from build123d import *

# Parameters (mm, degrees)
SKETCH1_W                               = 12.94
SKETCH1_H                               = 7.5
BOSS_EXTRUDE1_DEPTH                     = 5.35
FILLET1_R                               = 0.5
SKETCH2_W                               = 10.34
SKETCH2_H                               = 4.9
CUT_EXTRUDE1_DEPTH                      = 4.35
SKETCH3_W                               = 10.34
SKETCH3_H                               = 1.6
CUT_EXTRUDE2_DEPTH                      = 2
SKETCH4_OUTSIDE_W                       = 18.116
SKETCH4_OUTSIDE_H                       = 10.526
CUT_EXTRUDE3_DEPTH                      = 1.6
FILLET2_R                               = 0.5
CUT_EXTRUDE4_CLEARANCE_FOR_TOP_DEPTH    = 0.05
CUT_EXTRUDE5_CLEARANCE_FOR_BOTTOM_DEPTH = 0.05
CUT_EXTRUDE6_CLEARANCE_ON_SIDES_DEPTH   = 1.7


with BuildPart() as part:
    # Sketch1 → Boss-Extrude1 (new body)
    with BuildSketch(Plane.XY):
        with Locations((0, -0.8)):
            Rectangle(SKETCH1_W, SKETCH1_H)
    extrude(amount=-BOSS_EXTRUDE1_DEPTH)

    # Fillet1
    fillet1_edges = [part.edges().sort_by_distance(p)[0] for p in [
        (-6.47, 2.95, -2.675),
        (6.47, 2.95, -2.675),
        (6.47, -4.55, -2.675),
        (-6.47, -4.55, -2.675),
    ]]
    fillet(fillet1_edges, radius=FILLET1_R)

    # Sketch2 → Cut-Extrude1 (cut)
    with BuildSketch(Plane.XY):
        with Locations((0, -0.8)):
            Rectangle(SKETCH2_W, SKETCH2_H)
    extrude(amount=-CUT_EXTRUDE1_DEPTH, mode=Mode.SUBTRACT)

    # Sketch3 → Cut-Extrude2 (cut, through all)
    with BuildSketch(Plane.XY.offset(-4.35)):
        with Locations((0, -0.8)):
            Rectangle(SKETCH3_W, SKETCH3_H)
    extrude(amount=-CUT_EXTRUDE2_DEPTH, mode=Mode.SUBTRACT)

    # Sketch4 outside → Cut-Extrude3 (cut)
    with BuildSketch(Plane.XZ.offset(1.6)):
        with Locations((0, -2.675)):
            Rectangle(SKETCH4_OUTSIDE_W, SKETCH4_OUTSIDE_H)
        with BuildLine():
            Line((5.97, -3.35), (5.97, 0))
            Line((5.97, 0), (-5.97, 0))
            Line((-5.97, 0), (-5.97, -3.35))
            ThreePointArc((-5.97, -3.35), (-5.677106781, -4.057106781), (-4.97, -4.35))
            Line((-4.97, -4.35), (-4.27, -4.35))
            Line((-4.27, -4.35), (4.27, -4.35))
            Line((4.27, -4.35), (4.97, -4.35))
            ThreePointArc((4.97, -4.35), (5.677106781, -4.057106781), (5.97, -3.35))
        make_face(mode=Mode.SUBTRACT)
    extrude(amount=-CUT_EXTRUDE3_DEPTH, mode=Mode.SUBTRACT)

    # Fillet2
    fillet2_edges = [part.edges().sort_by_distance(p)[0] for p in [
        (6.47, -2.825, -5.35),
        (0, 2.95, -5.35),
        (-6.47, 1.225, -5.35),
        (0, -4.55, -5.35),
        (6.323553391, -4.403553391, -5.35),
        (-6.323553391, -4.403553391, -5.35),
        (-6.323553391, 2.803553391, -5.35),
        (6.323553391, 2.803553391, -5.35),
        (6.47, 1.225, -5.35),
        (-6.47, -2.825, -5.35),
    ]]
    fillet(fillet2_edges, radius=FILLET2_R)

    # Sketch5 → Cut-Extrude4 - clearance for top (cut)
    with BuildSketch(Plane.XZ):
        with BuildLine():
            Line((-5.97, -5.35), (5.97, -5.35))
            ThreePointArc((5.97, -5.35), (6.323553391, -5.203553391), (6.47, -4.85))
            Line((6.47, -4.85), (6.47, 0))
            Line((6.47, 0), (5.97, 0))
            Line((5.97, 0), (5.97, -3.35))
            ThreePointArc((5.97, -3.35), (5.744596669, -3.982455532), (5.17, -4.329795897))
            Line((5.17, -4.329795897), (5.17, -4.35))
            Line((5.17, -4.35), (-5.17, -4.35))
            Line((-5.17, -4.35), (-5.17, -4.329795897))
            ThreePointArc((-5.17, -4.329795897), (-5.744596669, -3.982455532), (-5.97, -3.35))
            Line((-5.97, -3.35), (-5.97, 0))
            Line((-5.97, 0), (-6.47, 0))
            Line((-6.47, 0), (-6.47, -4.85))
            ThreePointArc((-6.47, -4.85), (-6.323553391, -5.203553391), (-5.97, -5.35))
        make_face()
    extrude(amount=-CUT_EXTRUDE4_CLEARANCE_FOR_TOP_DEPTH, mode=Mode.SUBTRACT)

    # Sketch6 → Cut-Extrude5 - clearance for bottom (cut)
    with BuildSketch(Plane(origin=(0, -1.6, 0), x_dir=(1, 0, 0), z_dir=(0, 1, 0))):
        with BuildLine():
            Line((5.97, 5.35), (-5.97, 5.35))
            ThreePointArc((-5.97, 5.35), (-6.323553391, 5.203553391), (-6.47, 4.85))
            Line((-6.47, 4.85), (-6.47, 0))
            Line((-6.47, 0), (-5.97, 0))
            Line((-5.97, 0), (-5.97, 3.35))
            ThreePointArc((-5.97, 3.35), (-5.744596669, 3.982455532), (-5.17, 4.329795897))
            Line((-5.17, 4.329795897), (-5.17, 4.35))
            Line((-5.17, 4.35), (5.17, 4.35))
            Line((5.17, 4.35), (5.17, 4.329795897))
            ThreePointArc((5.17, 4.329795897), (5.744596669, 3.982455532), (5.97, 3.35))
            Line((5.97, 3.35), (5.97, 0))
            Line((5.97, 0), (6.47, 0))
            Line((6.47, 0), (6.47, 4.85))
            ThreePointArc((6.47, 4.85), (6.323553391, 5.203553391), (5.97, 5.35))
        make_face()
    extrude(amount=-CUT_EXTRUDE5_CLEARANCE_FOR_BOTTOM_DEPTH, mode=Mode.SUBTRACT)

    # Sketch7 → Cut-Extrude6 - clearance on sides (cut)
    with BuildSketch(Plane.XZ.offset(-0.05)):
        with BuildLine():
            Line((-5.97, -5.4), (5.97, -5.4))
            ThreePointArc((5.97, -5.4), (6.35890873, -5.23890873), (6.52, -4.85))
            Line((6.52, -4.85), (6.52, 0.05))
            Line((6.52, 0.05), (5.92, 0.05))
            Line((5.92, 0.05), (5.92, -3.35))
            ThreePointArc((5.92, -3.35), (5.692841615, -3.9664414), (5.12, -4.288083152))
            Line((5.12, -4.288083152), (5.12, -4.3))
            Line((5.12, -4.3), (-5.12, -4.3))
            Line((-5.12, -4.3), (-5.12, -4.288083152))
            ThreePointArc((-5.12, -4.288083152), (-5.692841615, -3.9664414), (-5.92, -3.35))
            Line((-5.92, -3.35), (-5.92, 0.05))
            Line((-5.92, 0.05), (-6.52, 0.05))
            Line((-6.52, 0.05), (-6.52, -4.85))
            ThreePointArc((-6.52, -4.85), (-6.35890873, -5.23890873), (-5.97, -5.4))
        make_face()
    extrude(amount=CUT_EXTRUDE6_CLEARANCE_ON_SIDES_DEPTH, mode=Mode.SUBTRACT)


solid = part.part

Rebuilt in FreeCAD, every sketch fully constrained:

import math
import FreeCAD as App
import Part
import Sketcher

V = App.Vector


def edges_at(feature, points):
    """Names of the edges that pass closest to the given points."""
    edges = feature.Shape.Edges
    near = lambda p: min(range(len(edges)), key=lambda i: edges[i].distToShape(Part.Vertex(*p))[0])
    return sorted({f"Edge{near(p) + 1}" for p in points})


def add_polygon(sketch, points):
    """Adds a closed chain of lines whose ends are joined by coincident constraints."""
    first, n = sketch.GeometryCount, len(points)
    for a, b in zip(points, points[1:] + points[:1]):
        sketch.addGeometry(Part.LineSegment(App.Vector(*a, 0), App.Vector(*b, 0)), False)
    for i in range(n):
        sketch.addConstraint(Sketcher.Constraint("Coincident", first + i, 2, first + (i + 1) % n, 1))

doc = App.newDocument("Part")
body = doc.addObject("PartDesign::Body", "Body")

# Sketch on XY plane
sketch1 = doc.addObject("Sketcher::SketchObject", "Sketch")
body.addObject(sketch1)
sketch1.AttachmentSupport = (doc.XY_Plane, [""])
sketch1.MapMode = "FlatFace"
add_polygon(sketch1, [(-6, 3), (-6, -5), (6, -5), (6, 3)])  # lines 0-3
sketch1.addConstraint(Sketcher.Constraint("Vertical", 0))
sketch1.addConstraint(Sketcher.Constraint("Horizontal", 1))
sketch1.addConstraint(Sketcher.Constraint("Vertical", 2))
sketch1.addConstraint(Sketcher.Constraint("Horizontal", 3))
sketch1.addConstraint(Sketcher.Constraint("DistanceY", 0, 2, 0, 1, 7.5))
sketch1.addConstraint(Sketcher.Constraint("DistanceX", 1, 1, 1, 2, 12.94))
sketch1.addConstraint(Sketcher.Constraint("DistanceX", 0, 2, -1, 1, 6.47))
sketch1.addConstraint(Sketcher.Constraint("DistanceY", 0, 2, -1, 1, 4.55))
pad1 = doc.addObject("PartDesign::Pad", "Pad")
body.addObject(pad1)
pad1.Profile = sketch1
pad1.Length = 5.35
pad1.Reversed = True
doc.recompute()

fillet = doc.addObject("PartDesign::Fillet", "Fillet")
body.addObject(fillet)
fillet.Base = (pad1, edges_at(pad1, [
    (-6.47, 2.95, -2.675),
    (6.47, 2.95, -2.675),
    (6.47, -4.55, -2.675),
    (-6.47, -4.55, -2.675),
]))
fillet.Radius = 0.5

# Sketch on XY plane
sketch2 = doc.addObject("Sketcher::SketchObject", "Sketch001")
body.addObject(sketch2)
sketch2.AttachmentSupport = (doc.XY_Plane, [""])
sketch2.MapMode = "FlatFace"
add_polygon(sketch2, [(-5.2, 1.6), (-5.2, -3.2), (5.2, -3.2), (5.2, 1.6)])  # lines 0-3
sketch2.addConstraint(Sketcher.Constraint("Vertical", 0))
sketch2.addConstraint(Sketcher.Constraint("Horizontal", 1))
sketch2.addConstraint(Sketcher.Constraint("Vertical", 2))
sketch2.addConstraint(Sketcher.Constraint("Horizontal", 3))
sketch2.addConstraint(Sketcher.Constraint("DistanceY", 0, 2, 0, 1, 4.9))
sketch2.addConstraint(Sketcher.Constraint("DistanceX", 1, 1, 1, 2, 10.34))
sketch2.addConstraint(Sketcher.Constraint("DistanceX", 0, 2, -1, 1, 5.17))
sketch2.addConstraint(Sketcher.Constraint("DistanceY", 0, 2, -1, 1, 3.25))
pocket1 = doc.addObject("PartDesign::Pocket", "Pocket")
body.addObject(pocket1)
pocket1.Profile = sketch2
pocket1.Length = 4.35

# Sketch on XY plane
sketch3 = doc.addObject("Sketcher::SketchObject", "Sketch002")
body.addObject(sketch3)
sketch3.AttachmentSupport = (doc.XY_Plane, [""])
sketch3.MapMode = "FlatFace"
sketch3.AttachmentOffset = App.Placement(V(0, 0, -4.35), App.Rotation())
add_polygon(sketch3, [(-5.2, 0), (-5.2, -1.6), (5.2, -1.6), (5.2, 0)])  # lines 0-3
sketch3.addConstraint(Sketcher.Constraint("Vertical", 0))
sketch3.addConstraint(Sketcher.Constraint("Horizontal", 1))
sketch3.addConstraint(Sketcher.Constraint("Vertical", 2))
sketch3.addConstraint(Sketcher.Constraint("Horizontal", 3))
sketch3.addConstraint(Sketcher.Constraint("Symmetric", 2, 2, 3, 2, -1, 1))
sketch3.addConstraint(Sketcher.Constraint("DistanceY", 0, 2, 0, 1, 1.6))
sketch3.addConstraint(Sketcher.Constraint("DistanceX", 1, 1, 1, 2, 10.34))
pocket2 = doc.addObject("PartDesign::Pocket", "Pocket001")
body.addObject(pocket2)
pocket2.Profile = sketch3
pocket2.Type = "ThroughAll"

# Sketch on XZ plane
sketch4 = doc.addObject("Sketcher::SketchObject", "Sketch003")
body.addObject(sketch4)
sketch4.AttachmentSupport = (doc.XZ_Plane, [""])
sketch4.MapMode = "FlatFace"
sketch4.AttachmentOffset = App.Placement(V(0, 0, 1.6), App.Rotation())
add_polygon(sketch4, [(-9.1, 2.6), (-9.1, -7.9), (9.1, -7.9), (9.1, 2.6)])  # lines 0-3
sketch4.addGeometry(Part.LineSegment(V(6, 0, 0), V(6, -3.4, 0)), False)  # 4
sketch4.addGeometry(Part.ArcOfCircle(Part.Circle(V(5, -3.3, 0), V(0, 0, 1), 1), math.radians(-90), math.radians(0)), False)  # 5
sketch4.addGeometry(Part.LineSegment(V(5, -4.3, 0), V(-5, -4.3, 0)), False)  # 6
sketch4.addGeometry(Part.ArcOfCircle(Part.Circle(V(-5, -3.3, 0), V(0, 0, 1), 1), math.radians(-180), math.radians(-90)), False)  # 7
sketch4.addGeometry(Part.LineSegment(V(-6, -3.4, 0), V(-6, 0, 0)), False)  # 8
sketch4.addGeometry(Part.LineSegment(V(-6, 0, 0), V(6, 0, 0)), False)  # 9
sketch4.addConstraint(Sketcher.Constraint("Tangent", 4, 2, 5, 2))
sketch4.addConstraint(Sketcher.Constraint("Tangent", 5, 1, 6, 1))
sketch4.addConstraint(Sketcher.Constraint("Tangent", 6, 2, 7, 2))
sketch4.addConstraint(Sketcher.Constraint("Tangent", 7, 1, 8, 1))
sketch4.addConstraint(Sketcher.Constraint("Coincident", 8, 2, 9, 1))
sketch4.addConstraint(Sketcher.Constraint("Coincident", 9, 2, 4, 1))
sketch4.addConstraint(Sketcher.Constraint("Vertical", 0))
sketch4.addConstraint(Sketcher.Constraint("Horizontal", 1))
sketch4.addConstraint(Sketcher.Constraint("Vertical", 2))
sketch4.addConstraint(Sketcher.Constraint("Horizontal", 3))
sketch4.addConstraint(Sketcher.Constraint("Vertical", 4))
sketch4.addConstraint(Sketcher.Constraint("Horizontal", 6))
sketch4.addConstraint(Sketcher.Constraint("Vertical", 8))
sketch4.addConstraint(Sketcher.Constraint("Horizontal", 9))
sketch4.addConstraint(Sketcher.Constraint("Equal", 5, 7))
sketch4.addConstraint(Sketcher.Constraint("Symmetric", 8, 2, 9, 2, -1, 1))
sketch4.addConstraint(Sketcher.Constraint("Radius", 5, 1.0))
sketch4.addConstraint(Sketcher.Constraint("DistanceX", 6, 2, 6, 1, 9.94))
sketch4.addConstraint(Sketcher.Constraint("DistanceY", 4, 2, 4, 1, 3.35))
sketch4.addConstraint(Sketcher.Constraint("DistanceX", 1, 1, 1, 2, 18.116))
sketch4.addConstraint(Sketcher.Constraint("DistanceY", 0, 2, 0, 1, 10.526))
sketch4.addConstraint(Sketcher.Constraint("DistanceX", 0, 2, -1, 1, 9.058))
sketch4.addConstraint(Sketcher.Constraint("DistanceY", 0, 2, -1, 1, 7.938))
pocket3 = doc.addObject("PartDesign::Pocket", "Pocket002")
body.addObject(pocket3)
pocket3.Profile = sketch4
pocket3.Length = 1.6
doc.recompute()

fillet2 = doc.addObject("PartDesign::Fillet", "Fillet001")
body.addObject(fillet2)
fillet2.Base = (pocket3, edges_at(pocket3, [
    (6.47, -2.825, -5.35),
    (0, 2.95, -5.35),
    (-6.47, 1.225, -5.35),
    (0, -4.55, -5.35),
    (6.324, -4.404, -5.35),
    (-6.324, -4.404, -5.35),
    (-6.324, 2.804, -5.35),
    (6.324, 2.804, -5.35),
    (6.47, 1.225, -5.35),
    (-6.47, -2.825, -5.35),
]))
fillet2.Radius = 0.5

# Sketch on XZ plane
sketch5 = doc.addObject("Sketcher::SketchObject", "Sketch004")
body.addObject(sketch5)
sketch5.AttachmentSupport = (doc.XZ_Plane, [""])
sketch5.MapMode = "FlatFace"
sketch5.addGeometry(Part.LineSegment(V(-5.97, -5.35, 0), V(5.97, -5.35, 0)), False)
sketch5.addGeometry(Part.ArcOfCircle(Part.Circle(V(5.97, -4.85, 0), V(0, 0, 1), 0.5), math.radians(-90), math.radians(0)), False)
sketch5.addGeometry(Part.LineSegment(V(6.47, -4.85, 0), V(6.47, 0, 0)), False)
sketch5.addGeometry(Part.LineSegment(V(6.47, 0, 0), V(5.97, 0, 0)), False)
sketch5.addGeometry(Part.LineSegment(V(5.97, 0, 0), V(5.97, -3.35, 0)), False)
sketch5.addGeometry(Part.ArcOfCircle(Part.Circle(V(4.97, -3.35, 0), V(0, 0, 1), 1), math.radians(-78), math.radians(0)), False)
sketch5.addGeometry(Part.LineSegment(V(5.17, -4.33, 0), V(5.17, -4.35, 0)), False)
sketch5.addGeometry(Part.LineSegment(V(5.17, -4.35, 0), V(-5.17, -4.35, 0)), False)
sketch5.addGeometry(Part.LineSegment(V(-5.17, -4.35, 0), V(-5.17, -4.33, 0)), False)
sketch5.addGeometry(Part.ArcOfCircle(Part.Circle(V(-4.97, -3.35, 0), V(0, 0, 1), 1), math.radians(180), math.radians(258)), False)
sketch5.addGeometry(Part.LineSegment(V(-5.97, -3.35, 0), V(-5.97, 0, 0)), False)
sketch5.addGeometry(Part.LineSegment(V(-5.97, 0, 0), V(-6.47, 0, 0)), False)
sketch5.addGeometry(Part.LineSegment(V(-6.47, 0, 0), V(-6.47, -4.85, 0)), False)
sketch5.addGeometry(Part.ArcOfCircle(Part.Circle(V(-5.97, -4.85, 0), V(0, 0, 1), 0.5), math.radians(180), math.radians(270)), False)
sketch5.addConstraint(Sketcher.Constraint("Tangent", 0, 2, 1, 1))
sketch5.addConstraint(Sketcher.Constraint("Tangent", 1, 2, 2, 1))
sketch5.addConstraint(Sketcher.Constraint("Coincident", 2, 2, 3, 1))
sketch5.addConstraint(Sketcher.Constraint("Coincident", 3, 2, 4, 1))
sketch5.addConstraint(Sketcher.Constraint("Tangent", 4, 2, 5, 2))
sketch5.addConstraint(Sketcher.Constraint("Coincident", 5, 1, 6, 1))
sketch5.addConstraint(Sketcher.Constraint("Coincident", 6, 2, 7, 1))
sketch5.addConstraint(Sketcher.Constraint("Coincident", 7, 2, 8, 1))
sketch5.addConstraint(Sketcher.Constraint("Coincident", 8, 2, 9, 2))
sketch5.addConstraint(Sketcher.Constraint("Tangent", 9, 1, 10, 1))
sketch5.addConstraint(Sketcher.Constraint("Coincident", 10, 2, 11, 1))
sketch5.addConstraint(Sketcher.Constraint("Coincident", 11, 2, 12, 1))
sketch5.addConstraint(Sketcher.Constraint("Tangent", 12, 2, 13, 1))
sketch5.addConstraint(Sketcher.Constraint("Tangent", 13, 2, 0, 1))
sketch5.addConstraint(Sketcher.Constraint("Horizontal", 0))
sketch5.addConstraint(Sketcher.Constraint("Vertical", 2))
sketch5.addConstraint(Sketcher.Constraint("Horizontal", 3))
sketch5.addConstraint(Sketcher.Constraint("Vertical", 4))
sketch5.addConstraint(Sketcher.Constraint("Vertical", 6))
sketch5.addConstraint(Sketcher.Constraint("Horizontal", 7))
sketch5.addConstraint(Sketcher.Constraint("Vertical", 8))
sketch5.addConstraint(Sketcher.Constraint("Vertical", 10))
sketch5.addConstraint(Sketcher.Constraint("Horizontal", 11))
sketch5.addConstraint(Sketcher.Constraint("Vertical", 12))
sketch5.addConstraint(Sketcher.Constraint("Equal", 5, 9))
sketch5.addConstraint(Sketcher.Constraint("Equal", 1, 13))
sketch5.addConstraint(Sketcher.Constraint("Symmetric", 3, 2, 10, 2, -1, 1))
sketch5.addConstraint(Sketcher.Constraint("Symmetric", 5, 1, 8, 2, -2))
sketch5.addConstraint(Sketcher.Constraint("Symmetric", 2, 2, 11, 2, -2))
sketch5.addConstraint(Sketcher.Constraint("Vertical", 0, 2, 3, 2))
sketch5.addConstraint(Sketcher.Constraint("Radius", 5, 1.0))
sketch5.addConstraint(Sketcher.Constraint("Radius", 1, 0.5))
sketch5.addConstraint(Sketcher.Constraint("DistanceY", 0, 2, 5, 3, 2.0))
sketch5.addConstraint(Sketcher.Constraint("DistanceY", 6, 2, 5, 3, 1.0))
sketch5.addConstraint(Sketcher.Constraint("DistanceX", 0, 1, 0, 2, 11.94))
sketch5.addConstraint(Sketcher.Constraint("DistanceX", 7, 2, 7, 1, 10.34))
sketch5.addConstraint(Sketcher.Constraint("DistanceY", 2, 1, 2, 2, 4.85))
pocket4 = doc.addObject("PartDesign::Pocket", "Pocket003")
body.addObject(pocket4)
pocket4.Profile = sketch5
pocket4.Length = 0.05

# Sketch on XZ plane
sketch6 = doc.addObject("Sketcher::SketchObject", "Sketch005")
body.addObject(sketch6)
sketch6.AttachmentSupport = (doc.XZ_Plane, [""])
sketch6.MapMode = "FlatFace"
sketch6.AttachmentOffset = App.Placement(V(0, 0, 1.6), App.Rotation())
sketch6.addGeometry(Part.LineSegment(V(5.97, -5.35, 0), V(-5.97, -5.35, 0)), False)
sketch6.addGeometry(Part.ArcOfCircle(Part.Circle(V(-5.97, -4.85, 0), V(0, 0, 1), 0.5), math.radians(180), math.radians(270)), False)
sketch6.addGeometry(Part.LineSegment(V(-6.47, -4.85, 0), V(-6.47, 0, 0)), False)
sketch6.addGeometry(Part.LineSegment(V(-6.47, 0, 0), V(-5.97, 0, 0)), False)
sketch6.addGeometry(Part.LineSegment(V(-5.97, 0, 0), V(-5.97, -3.35, 0)), False)
sketch6.addGeometry(Part.ArcOfCircle(Part.Circle(V(-4.97, -3.35, 0), V(0, 0, 1), 1), math.radians(180), math.radians(258)), False)
sketch6.addGeometry(Part.LineSegment(V(-5.17, -4.33, 0), V(-5.17, -4.35, 0)), False)
sketch6.addGeometry(Part.LineSegment(V(-5.17, -4.35, 0), V(5.17, -4.35, 0)), False)
sketch6.addGeometry(Part.LineSegment(V(5.17, -4.35, 0), V(5.17, -4.33, 0)), False)
sketch6.addGeometry(Part.ArcOfCircle(Part.Circle(V(4.97, -3.35, 0), V(0, 0, 1), 1), math.radians(-78), math.radians(0)), False)
sketch6.addGeometry(Part.LineSegment(V(5.97, -3.35, 0), V(5.97, 0, 0)), False)
sketch6.addGeometry(Part.LineSegment(V(5.97, 0, 0), V(6.47, 0, 0)), False)
sketch6.addGeometry(Part.LineSegment(V(6.47, 0, 0), V(6.47, -4.85, 0)), False)
sketch6.addGeometry(Part.ArcOfCircle(Part.Circle(V(5.97, -4.85, 0), V(0, 0, 1), 0.5), math.radians(-90), math.radians(0)), False)
sketch6.addConstraint(Sketcher.Constraint("Tangent", 0, 2, 1, 2))
sketch6.addConstraint(Sketcher.Constraint("Tangent", 1, 1, 2, 1))
sketch6.addConstraint(Sketcher.Constraint("Coincident", 2, 2, 3, 1))
sketch6.addConstraint(Sketcher.Constraint("Coincident", 3, 2, 4, 1))
sketch6.addConstraint(Sketcher.Constraint("Tangent", 4, 2, 5, 1))
sketch6.addConstraint(Sketcher.Constraint("Coincident", 5, 2, 6, 1))
sketch6.addConstraint(Sketcher.Constraint("Coincident", 6, 2, 7, 1))
sketch6.addConstraint(Sketcher.Constraint("Coincident", 7, 2, 8, 1))
sketch6.addConstraint(Sketcher.Constraint("Coincident", 8, 2, 9, 1))
sketch6.addConstraint(Sketcher.Constraint("Tangent", 9, 2, 10, 1))
sketch6.addConstraint(Sketcher.Constraint("Coincident", 10, 2, 11, 1))
sketch6.addConstraint(Sketcher.Constraint("Coincident", 11, 2, 12, 1))
sketch6.addConstraint(Sketcher.Constraint("Tangent", 12, 2, 13, 2))
sketch6.addConstraint(Sketcher.Constraint("Tangent", 13, 1, 0, 1))
sketch6.addConstraint(Sketcher.Constraint("Horizontal", 0))
sketch6.addConstraint(Sketcher.Constraint("Vertical", 2))
sketch6.addConstraint(Sketcher.Constraint("Horizontal", 3))
sketch6.addConstraint(Sketcher.Constraint("Vertical", 4))
sketch6.addConstraint(Sketcher.Constraint("Vertical", 6))
sketch6.addConstraint(Sketcher.Constraint("Horizontal", 7))
sketch6.addConstraint(Sketcher.Constraint("Vertical", 8))
sketch6.addConstraint(Sketcher.Constraint("Vertical", 10))
sketch6.addConstraint(Sketcher.Constraint("Horizontal", 11))
sketch6.addConstraint(Sketcher.Constraint("Vertical", 12))
sketch6.addConstraint(Sketcher.Constraint("Equal", 5, 9))
sketch6.addConstraint(Sketcher.Constraint("Equal", 1, 13))
sketch6.addConstraint(Sketcher.Constraint("Symmetric", 3, 2, 10, 2, -1, 1))
sketch6.addConstraint(Sketcher.Constraint("Symmetric", 5, 2, 8, 2, -2))
sketch6.addConstraint(Sketcher.Constraint("Symmetric", 2, 2, 11, 2, -2))
sketch6.addConstraint(Sketcher.Constraint("Vertical", 0, 2, 3, 2))
sketch6.addConstraint(Sketcher.Constraint("Radius", 5, 1.0))
sketch6.addConstraint(Sketcher.Constraint("Radius", 1, 0.5))
sketch6.addConstraint(Sketcher.Constraint("DistanceY", 0, 2, 5, 3, 2.0))
sketch6.addConstraint(Sketcher.Constraint("DistanceY", 6, 2, 5, 3, 1.0))
sketch6.addConstraint(Sketcher.Constraint("DistanceX", 0, 2, 0, 1, 11.94))
sketch6.addConstraint(Sketcher.Constraint("DistanceX", 7, 1, 7, 2, 10.34))
sketch6.addConstraint(Sketcher.Constraint("DistanceY", 2, 1, 2, 2, 4.85))
pocket5 = doc.addObject("PartDesign::Pocket", "Pocket004")
body.addObject(pocket5)
pocket5.Profile = sketch6
pocket5.Length = 0.05
pocket5.Reversed = True

# Sketch on XZ plane
sketch7 = doc.addObject("Sketcher::SketchObject", "Sketch006")
body.addObject(sketch7)
sketch7.AttachmentSupport = (doc.XZ_Plane, [""])
sketch7.MapMode = "FlatFace"
sketch7.AttachmentOffset = App.Placement(V(0, 0, -0.05), App.Rotation())
sketch7.addGeometry(Part.LineSegment(V(-5.97, -5.4, 0), V(5.97, -5.4, 0)), False)
sketch7.addGeometry(Part.ArcOfCircle(Part.Circle(V(5.97, -4.85, 0), V(0, 0, 1), 0.55), math.radians(-90), math.radians(0)), False)
sketch7.addGeometry(Part.LineSegment(V(6.52, -4.85, 0), V(6.52, 0.05, 0)), False)
sketch7.addGeometry(Part.LineSegment(V(6.52, 0.05, 0), V(5.92, 0.05, 0)), False)
sketch7.addGeometry(Part.LineSegment(V(5.92, 0.05, 0), V(5.92, -3.35, 0)), False)
sketch7.addGeometry(Part.ArcOfCircle(Part.Circle(V(4.97, -3.35, 0), V(0, 0, 1), 0.95), math.radians(-81), math.radians(0)), False)
sketch7.addGeometry(Part.LineSegment(V(5.12, -4.288, 0), V(5.12, -4.3, 0)), False)
sketch7.addGeometry(Part.LineSegment(V(5.12, -4.3, 0), V(-5.12, -4.3, 0)), False)
sketch7.addGeometry(Part.LineSegment(V(-5.12, -4.3, 0), V(-5.12, -4.288, 0)), False)
sketch7.addGeometry(Part.ArcOfCircle(Part.Circle(V(-4.97, -3.35, 0), V(0, 0, 1), 0.95), math.radians(180), math.radians(261)), False)
sketch7.addGeometry(Part.LineSegment(V(-5.92, -3.35, 0), V(-5.92, 0.05, 0)), False)
sketch7.addGeometry(Part.LineSegment(V(-5.92, 0.05, 0), V(-6.52, 0.05, 0)), False)
sketch7.addGeometry(Part.LineSegment(V(-6.52, 0.05, 0), V(-6.52, -4.85, 0)), False)
sketch7.addGeometry(Part.ArcOfCircle(Part.Circle(V(-5.97, -4.85, 0), V(0, 0, 1), 0.55), math.radians(180), math.radians(270)), False)
sketch7.addConstraint(Sketcher.Constraint("Tangent", 0, 2, 1, 1))
sketch7.addConstraint(Sketcher.Constraint("Tangent", 1, 2, 2, 1))
sketch7.addConstraint(Sketcher.Constraint("Coincident", 2, 2, 3, 1))
sketch7.addConstraint(Sketcher.Constraint("Coincident", 3, 2, 4, 1))
sketch7.addConstraint(Sketcher.Constraint("Tangent", 4, 2, 5, 2))
sketch7.addConstraint(Sketcher.Constraint("Coincident", 5, 1, 6, 1))
sketch7.addConstraint(Sketcher.Constraint("Coincident", 6, 2, 7, 1))
sketch7.addConstraint(Sketcher.Constraint("Coincident", 7, 2, 8, 1))
sketch7.addConstraint(Sketcher.Constraint("Coincident", 8, 2, 9, 2))
sketch7.addConstraint(Sketcher.Constraint("Tangent", 9, 1, 10, 1))
sketch7.addConstraint(Sketcher.Constraint("Coincident", 10, 2, 11, 1))
sketch7.addConstraint(Sketcher.Constraint("Coincident", 11, 2, 12, 1))
sketch7.addConstraint(Sketcher.Constraint("Tangent", 12, 2, 13, 1))
sketch7.addConstraint(Sketcher.Constraint("Tangent", 13, 2, 0, 1))
sketch7.addConstraint(Sketcher.Constraint("Horizontal", 0))
sketch7.addConstraint(Sketcher.Constraint("Vertical", 2))
sketch7.addConstraint(Sketcher.Constraint("Horizontal", 3))
sketch7.addConstraint(Sketcher.Constraint("Vertical", 4))
sketch7.addConstraint(Sketcher.Constraint("Vertical", 6))
sketch7.addConstraint(Sketcher.Constraint("Horizontal", 7))
sketch7.addConstraint(Sketcher.Constraint("Vertical", 8))
sketch7.addConstraint(Sketcher.Constraint("Vertical", 10))
sketch7.addConstraint(Sketcher.Constraint("Horizontal", 11))
sketch7.addConstraint(Sketcher.Constraint("Vertical", 12))
sketch7.addConstraint(Sketcher.Constraint("Equal", 5, 9))
sketch7.addConstraint(Sketcher.Constraint("Equal", 1, 13))
sketch7.addConstraint(Sketcher.Constraint("Symmetric", 5, 3, 9, 3, -2))
sketch7.addConstraint(Sketcher.Constraint("Symmetric", 2, 2, 11, 2, -2))
sketch7.addConstraint(Sketcher.Constraint("Horizontal", 5, 1, 8, 2))
sketch7.addConstraint(Sketcher.Constraint("Radius", 1, 0.55))
sketch7.addConstraint(Sketcher.Constraint("Radius", 5, 0.95))
sketch7.addConstraint(Sketcher.Constraint("DistanceX", 3, 2, 3, 1, 0.6))
sketch7.addConstraint(Sketcher.Constraint("DistanceY", 2, 1, 2, 2, 4.9))
sketch7.addConstraint(Sketcher.Constraint("DistanceY", 4, 2, 4, 1, 3.4))
sketch7.addConstraint(Sketcher.Constraint("DistanceX", 0, 1, 0, 2, 11.94))
sketch7.addConstraint(Sketcher.Constraint("DistanceX", 7, 2, 7, 1, 10.24))
sketch7.addConstraint(Sketcher.Constraint("DistanceY", 0, 2, -1, 1, 5.4))
sketch7.addConstraint(Sketcher.Constraint("DistanceY", 6, 2, -1, 1, 4.3))
pocket6 = doc.addObject("PartDesign::Pocket", "Pocket005")
body.addObject(pocket6)
pocket6.Profile = sketch7
pocket6.Length = 1.7
pocket6.Reversed = True

doc.recompute()
